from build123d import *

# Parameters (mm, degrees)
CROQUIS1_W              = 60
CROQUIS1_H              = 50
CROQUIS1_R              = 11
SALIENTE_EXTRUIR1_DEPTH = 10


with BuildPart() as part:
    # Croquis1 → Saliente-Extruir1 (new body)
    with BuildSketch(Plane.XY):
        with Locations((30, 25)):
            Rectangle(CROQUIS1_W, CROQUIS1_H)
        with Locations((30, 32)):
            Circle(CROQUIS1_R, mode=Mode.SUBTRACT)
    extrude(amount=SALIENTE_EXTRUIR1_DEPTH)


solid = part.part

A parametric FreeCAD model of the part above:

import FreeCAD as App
import Part
import Sketcher
from FreeCAD import Vector

doc = App.newDocument("Part")
body = doc.addObject("PartDesign::Body", "Body")

sketch1 = body.newObject("Sketcher::SketchObject", "Sketch")
sketch1.AttachmentSupport = (doc.getObject("XY_Plane"), [""])
sketch1.MapMode = "FlatFace"
sketch1.addGeometry([
    Part.LineSegment(Vector(0, 50, 0), Vector(0, 0, 0)),
    Part.LineSegment(Vector(0, 0, 0), Vector(60, 0, 0)),
    Part.LineSegment(Vector(60, 0, 0), Vector(60, 50, 0)),
    Part.LineSegment(Vector(60, 50, 0), Vector(0, 50, 0)),
    Part.Circle(Vector(30, 32, 0), Vector(0, 0, 1), 11),
], False)
sketch1.addConstraint([
    Sketcher.Constraint("Coincident", 0, 2, 1, 1),
    Sketcher.Constraint("Coincident", 1, 2, 2, 1),
    Sketcher.Constraint("Coincident", 2, 2, 3, 1),
    Sketcher.Constraint("Coincident", 3, 2, 0, 1),
    Sketcher.Constraint("Vertical", 0),
    Sketcher.Constraint("Horizontal", 1),
    Sketcher.Constraint("Vertical", 2),
    Sketcher.Constraint("Horizontal", 3),
    Sketcher.Constraint("Coincident", 0, 2, -1, 1),
    Sketcher.Constraint("Diameter", 4, 22.0),
    Sketcher.Constraint("DistanceX", 1, 1, 1, 2, 60.0),
    Sketcher.Constraint("DistanceY", 0, 2, 0, 1, 50.0),
    Sketcher.Constraint("DistanceX", -1, 1, 4, 3, 30.0),
    Sketcher.Constraint("DistanceY", -1, 1, 4, 3, 32.0),
])
pad1 = body.newObject("PartDesign::Pad", "Pad")
pad1.Profile = sketch1
pad1.Length = 10

doc.recompute()
